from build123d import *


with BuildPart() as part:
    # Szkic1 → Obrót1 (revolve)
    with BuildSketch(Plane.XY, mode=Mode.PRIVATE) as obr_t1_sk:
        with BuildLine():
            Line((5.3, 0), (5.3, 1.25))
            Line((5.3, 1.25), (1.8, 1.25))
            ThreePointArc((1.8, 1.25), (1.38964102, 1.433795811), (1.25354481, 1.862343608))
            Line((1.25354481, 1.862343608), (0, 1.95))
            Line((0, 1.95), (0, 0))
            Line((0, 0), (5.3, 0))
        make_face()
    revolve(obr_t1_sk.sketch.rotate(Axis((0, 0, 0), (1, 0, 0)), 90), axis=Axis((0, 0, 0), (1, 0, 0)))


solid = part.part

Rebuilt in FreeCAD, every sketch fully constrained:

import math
import FreeCAD as App
import Part
import Sketcher

V = App.Vector
Q = App.Units.Quantity

doc = App.newDocument("Part")
body = doc.addObject("PartDesign::Body", "Body")

# Sketch on XY plane
sketch1 = body.newObject("Sketcher::SketchObject", "Sketch")
sketch1.AttachmentSupport = (doc.getObject("XY_Plane"), [""])
sketch1.MapMode = "FlatFace"
sketch1.addGeometry(Part.LineSegment(V(5.3, 0, 0), V(5.3, 1.2, 0)), False)
sketch1.addGeometry(Part.LineSegment(V(5.3, 1.2, 0), V(1.8, 1.2, 0)), False)
sketch1.addGeometry(Part.ArcOfCircle(Part.Circle(V(1.8, 1.8, 0), V(0, 0, 1), 0.5), math.radians(173), math.radians(270)), False)
sketch1.addGeometry(Part.LineSegment(V(1.3, 1.9, 0), V(0, 1.9, 0)), False)
sketch1.addGeometry(Part.LineSegment(V(0, 1.9, 0), V(0, 0, 0)), False)
sketch1.addGeometry(Part.LineSegment(V(0, 0, 0), V(5.3, 0, 0)), False)
sketch1.addConstraint(Sketcher.Constraint("Coincident", 0, 2, 1, 1))
sketch1.addConstraint(Sketcher.Constraint("Tangent", 1, 2, 2, 2))
sketch1.addConstraint(Sketcher.Constraint("Coincident", 2, 1, 3, 1))
sketch1.addConstraint(Sketcher.Constraint("Coincident", 3, 2, 4, 1))
sketch1.addConstraint(Sketcher.Constraint("Coincident", 4, 2, 5, 1))
sketch1.addConstraint(Sketcher.Constraint("Coincident", 5, 2, 0, 1))
sketch1.addConstraint(Sketcher.Constraint("Vertical", 0))
sketch1.addConstraint(Sketcher.Constraint("Horizontal", 1))
sketch1.addConstraint(Sketcher.Constraint("Vertical", 4))
sketch1.addConstraint(Sketcher.Constraint("Horizontal", 5))
sketch1.addConstraint(Sketcher.Constraint("Coincident", 4, 2, -1, 1))
sketch1.addConstraint(Sketcher.Constraint("Angle", 3, Q("176 deg")))
sketch1.addConstraint(Sketcher.Constraint("Radius", 2, Q("0.55 mm")))
sketch1.addConstraint(Sketcher.Constraint("DistanceX", 1, 2, 1, 1, Q("3.5 mm")))
sketch1.addConstraint(Sketcher.Constraint("DistanceX", 5, 1, 5, 2, Q("5.3 mm")))
sketch1.addConstraint(Sketcher.Constraint("DistanceY", 0, 1, 0, 2, Q("1.25 mm")))
sketch1.addConstraint(Sketcher.Constraint("DistanceY", 4, 2, 4, 1, Q("1.95 mm")))
revolution = body.newObject("PartDesign::Revolution", "Revolution")
revolution.Profile = sketch1
revolution.ReferenceAxis = (sketch1, ["H_Axis"])
revolution.Angle = 360

doc.recompute()
